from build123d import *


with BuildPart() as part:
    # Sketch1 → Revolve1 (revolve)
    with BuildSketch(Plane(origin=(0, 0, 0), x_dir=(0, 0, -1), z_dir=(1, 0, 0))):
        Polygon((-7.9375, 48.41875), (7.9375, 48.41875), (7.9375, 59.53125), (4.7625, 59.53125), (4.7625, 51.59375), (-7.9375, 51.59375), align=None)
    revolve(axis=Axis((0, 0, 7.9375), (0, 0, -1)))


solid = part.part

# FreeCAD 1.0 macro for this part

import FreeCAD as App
import Part
import Sketcher
from FreeCAD import Vector
Q = App.Units.Quantity


def add_polygon(sketch, points):
    """Adds a closed chain of lines whose ends are joined by coincident constraints."""
    first, n = sketch.GeometryCount, len(points)
    for a, b in zip(points, points[1:] + points[:1]):
        sketch.addGeometry(Part.LineSegment(App.Vector(*a, 0), App.Vector(*b, 0)), False)
    for i in range(n):
        sketch.addConstraint(Sketcher.Constraint("Coincident", first + i, 2, first + (i + 1) % n, 1))

doc = App.newDocument("Part")
body = doc.addObject("PartDesign::Body", "Body")

# Sketch on YZ plane
sketch1 = body.newObject("Sketcher::SketchObject", "Sketch")
sketch1.AttachmentSupport = (doc.getObject("YZ_Plane"), [""])
sketch1.MapMode = "FlatFace"
add_polygon(sketch1, [(48.4, 7.9), (48.4, -7.9), (59.5, -7.9), (59.5, -4.8), (51.6, -4.8), (51.6, 7.9)])  # lines 0-5
sketch1.addConstraint(Sketcher.Constraint("Vertical", 0))
sketch1.addConstraint(Sketcher.Constraint("Horizontal", 1))
sketch1.addConstraint(Sketcher.Constraint("Vertical", 2))
sketch1.addConstraint(Sketcher.Constraint("Horizontal", 3))
sketch1.addConstraint(Sketcher.Constraint("Vertical", 4))
sketch1.addConstraint(Sketcher.Constraint("Horizontal", 5))
sketch1.addConstraint(Sketcher.Constraint("Equal", 5, 2))
sketch1.addConstraint(Sketcher.Constraint("DistanceY", 4, 1, 4, 2, Q("0.5 in")))
sketch1.addConstraint(Sketcher.Constraint("DistanceX", 1, 1, 1, 2, Q("0.4375 in")))
sketch1.addConstraint(Sketcher.Constraint("DistanceX", 3, 2, 3, 1, Q("0.3125 in")))
sketch1.addConstraint(Sketcher.Constraint("DistanceX", -1, 1, 0, 2, Q("1.90625 in")))
sketch1.addConstraint(Sketcher.Constraint("DistanceY", 0, 2, -1, 1, Q("0.3125 in")))
revolution = body.newObject("PartDesign::Revolution", "Revolution")
revolution.Profile = sketch1
revolution.ReferenceAxis = (sketch1, ["V_Axis"])
revolution.Angle = 360

doc.recompute()
